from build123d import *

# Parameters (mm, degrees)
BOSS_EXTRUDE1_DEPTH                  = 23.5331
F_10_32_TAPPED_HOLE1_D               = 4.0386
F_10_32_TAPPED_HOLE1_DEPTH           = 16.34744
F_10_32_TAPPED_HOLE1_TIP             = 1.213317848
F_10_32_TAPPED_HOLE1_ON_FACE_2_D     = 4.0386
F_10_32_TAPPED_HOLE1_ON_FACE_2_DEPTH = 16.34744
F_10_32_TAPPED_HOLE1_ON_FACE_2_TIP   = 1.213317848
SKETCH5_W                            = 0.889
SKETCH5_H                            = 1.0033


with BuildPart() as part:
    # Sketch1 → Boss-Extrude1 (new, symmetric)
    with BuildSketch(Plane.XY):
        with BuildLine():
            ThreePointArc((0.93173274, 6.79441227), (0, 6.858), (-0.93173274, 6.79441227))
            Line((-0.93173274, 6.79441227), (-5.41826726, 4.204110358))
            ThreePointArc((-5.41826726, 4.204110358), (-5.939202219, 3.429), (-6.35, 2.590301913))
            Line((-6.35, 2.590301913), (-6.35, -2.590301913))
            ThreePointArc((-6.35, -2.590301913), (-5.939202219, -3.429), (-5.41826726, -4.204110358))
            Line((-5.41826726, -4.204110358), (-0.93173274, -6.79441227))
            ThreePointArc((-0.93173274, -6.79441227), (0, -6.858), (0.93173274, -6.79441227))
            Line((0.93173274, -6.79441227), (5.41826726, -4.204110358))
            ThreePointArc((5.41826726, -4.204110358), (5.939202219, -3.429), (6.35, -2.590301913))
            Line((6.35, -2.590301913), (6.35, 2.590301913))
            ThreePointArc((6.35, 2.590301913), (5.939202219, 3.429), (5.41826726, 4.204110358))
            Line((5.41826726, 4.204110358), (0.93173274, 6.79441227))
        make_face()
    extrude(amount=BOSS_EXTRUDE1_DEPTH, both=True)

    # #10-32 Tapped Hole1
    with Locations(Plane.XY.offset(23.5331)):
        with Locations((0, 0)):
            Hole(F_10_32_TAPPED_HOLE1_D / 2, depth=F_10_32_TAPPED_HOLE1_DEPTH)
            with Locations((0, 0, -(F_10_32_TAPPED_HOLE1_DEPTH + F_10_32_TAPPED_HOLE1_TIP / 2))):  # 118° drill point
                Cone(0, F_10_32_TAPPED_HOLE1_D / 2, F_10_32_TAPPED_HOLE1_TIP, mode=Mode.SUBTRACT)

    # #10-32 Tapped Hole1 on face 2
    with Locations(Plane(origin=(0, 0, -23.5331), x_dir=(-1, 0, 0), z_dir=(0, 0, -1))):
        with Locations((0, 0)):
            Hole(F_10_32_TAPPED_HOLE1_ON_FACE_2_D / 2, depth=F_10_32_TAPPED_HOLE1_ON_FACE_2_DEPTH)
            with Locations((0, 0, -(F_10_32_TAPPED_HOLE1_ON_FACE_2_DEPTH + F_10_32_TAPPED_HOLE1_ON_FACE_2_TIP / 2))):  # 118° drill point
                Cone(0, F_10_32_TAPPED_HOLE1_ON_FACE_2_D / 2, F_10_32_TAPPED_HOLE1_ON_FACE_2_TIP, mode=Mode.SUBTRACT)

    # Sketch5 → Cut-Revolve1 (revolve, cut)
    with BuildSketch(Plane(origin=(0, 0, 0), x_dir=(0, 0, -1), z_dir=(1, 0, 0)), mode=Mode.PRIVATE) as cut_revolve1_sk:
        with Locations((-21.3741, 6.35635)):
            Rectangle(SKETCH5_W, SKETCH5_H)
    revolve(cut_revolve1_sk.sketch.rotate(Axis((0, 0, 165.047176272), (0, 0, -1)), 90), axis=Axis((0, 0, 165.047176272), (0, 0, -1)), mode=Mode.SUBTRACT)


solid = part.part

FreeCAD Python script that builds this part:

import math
import FreeCAD as App
import Part
import Sketcher
Q = App.Units.Quantity

doc = App.newDocument("Part")
params = doc.addObject("Spreadsheet::Sheet", "Params")
for row, (alias, value) in enumerate([
    ("sketch1_radius", "0.27 in"),
    ("pad1_length", "1.853 in"),
    ("sketch2_diameter", "0.159 in"),
    ("hole_diameter", "0.159 in"),
    ("hole_depth", "0.6436 in"),
    ("sketch3_diameter", "0.159 in"),
    ("hole2_diameter", "0.159 in"),
    ("hole2_depth", "0.6436 in"),
    ("sketch4_height", "0.035 in"),
    ("groove_angle", "360 deg"),
], start=1):
    params.set(f"A{row}", alias)
    params.set(f"B{row}", "=" + value)
    params.setAlias(f"B{row}", alias)

body = doc.addObject("PartDesign::Body", "Body")

sketch1 = body.newObject("Sketcher::SketchObject", "Sketch")
sketch1.AttachmentSupport = (doc.getObject("XY_Plane"), [""])
sketch1.MapMode = "FlatFace"
sketch1.addGeometry(Part.ArcOfCircle(Part.Circle(App.Vector(0, 0, 0), App.Vector(0, 0, 1), 6.9), math.radians(82.19), math.radians(97.81)), False)
sketch1.addGeometry(Part.LineSegment(App.Vector(-0.9, 6.8, 0), App.Vector(-5.4, 4.2, 0)), False)
sketch1.addGeometry(Part.ArcOfCircle(Part.Circle(App.Vector(0, 0, 0), App.Vector(0, 0, 1), 6.9), math.radians(142.19), math.radians(157.81)), False)
sketch1.addGeometry(Part.LineSegment(App.Vector(-6.3, 2.6, 0), App.Vector(-6.3, -2.6, 0)), False)
sketch1.addGeometry(Part.ArcOfCircle(Part.Circle(App.Vector(0, 0, 0), App.Vector(0, 0, 1), 6.9), math.radians(-157.81), math.radians(-142.19)), False)
sketch1.addGeometry(Part.LineSegment(App.Vector(-5.4, -4.2, 0), App.Vector(-0.9, -6.8, 0)), False)
sketch1.addGeometry(Part.ArcOfCircle(Part.Circle(App.Vector(0, 0, 0), App.Vector(0, 0, 1), 6.9), math.radians(-97.81), math.radians(-82.19)), False)
sketch1.addGeometry(Part.LineSegment(App.Vector(0.9, -6.8, 0), App.Vector(5.4, -4.2, 0)), False)
sketch1.addGeometry(Part.ArcOfCircle(Part.Circle(App.Vector(0, 0, 0), App.Vector(0, 0, 1), 6.9), math.radians(-37.81), math.radians(-22.19)), False)
sketch1.addGeometry(Part.LineSegment(App.Vector(6.3, -2.6, 0), App.Vector(6.3, 2.6, 0)), False)
sketch1.addGeometry(Part.ArcOfCircle(Part.Circle(App.Vector(0, 0, 0), App.Vector(0, 0, 1), 6.9), math.radians(22.19), math.radians(37.81)), False)
sketch1.addGeometry(Part.LineSegment(App.Vector(5.4, 4.2, 0), App.Vector(0.9, 6.8, 0)), False)
sketch1.addConstraint(Sketcher.Constraint("Coincident", 0, 2, 1, 1))
sketch1.addConstraint(Sketcher.Constraint("Coincident", 1, 2, 2, 1))
sketch1.addConstraint(Sketcher.Constraint("Coincident", 2, 2, 3, 1))
sketch1.addConstraint(Sketcher.Constraint("Coincident", 3, 2, 4, 1))
sketch1.addConstraint(Sketcher.Constraint("Coincident", 4, 2, 5, 1))
sketch1.addConstraint(Sketcher.Constraint("Coincident", 5, 2, 6, 1))
sketch1.addConstraint(Sketcher.Constraint("Coincident", 6, 2, 7, 1))
sketch1.addConstraint(Sketcher.Constraint("Coincident", 7, 2, 8, 1))
sketch1.addConstraint(Sketcher.Constraint("Coincident", 8, 2, 9, 1))
sketch1.addConstraint(Sketcher.Constraint("Coincident", 9, 2, 10, 1))
sketch1.addConstraint(Sketcher.Constraint("Coincident", 10, 2, 11, 1))
sketch1.addConstraint(Sketcher.Constraint("Coincident", 11, 2, 0, 1))
sketch1.addConstraint(Sketcher.Constraint("Vertical", 3))
sketch1.addConstraint(Sketcher.Constraint("Vertical", 9))
sketch1.addConstraint(Sketcher.Constraint("Coincident", 0, 3, -1, 1))
sketch1.addConstraint(Sketcher.Constraint("Coincident", 2, 3, -1, 1))
sketch1.addConstraint(Sketcher.Constraint("Coincident", 4, 3, -1, 1))
sketch1.addConstraint(Sketcher.Constraint("Coincident", 6, 3, -1, 1))
sketch1.addConstraint(Sketcher.Constraint("Coincident", 8, 3, -1, 1))
sketch1.addConstraint(Sketcher.Constraint("Coincident", 10, 3, -1, 1))
sketch1.addConstraint(Sketcher.Constraint("Equal", 0, 2))
sketch1.addConstraint(Sketcher.Constraint("Equal", 2, 4))
sketch1.addConstraint(Sketcher.Constraint("Equal", 4, 6))
sketch1.addConstraint(Sketcher.Constraint("Equal", 6, 8))
sketch1.addConstraint(Sketcher.Constraint("Equal", 8, 10))
sketch1.addConstraint(Sketcher.Constraint("Parallel", 1, 7))
sketch1.addConstraint(Sketcher.Constraint("Parallel", 5, 11))
sketch1.addConstraint(Sketcher.Constraint("Horizontal", 5, 2, 6, 2))
sketch1.addConstraint(Sketcher.Constraint("Horizontal", 4, 2, 7, 2))
sketch1.addConstraint(Sketcher.Constraint("Horizontal", 3, 2, 8, 2))
sketch1.addConstraint(Sketcher.Constraint("Horizontal", 1, 2, 10, 2))
sketch1.addConstraint(Sketcher.Constraint("Vertical", 1, 2, 4, 2))
sketch1.addConstraint(Sketcher.Constraint("Radius", 0, Q("0.27 in")))
sketch1.addConstraint(Sketcher.Constraint("Angle", 1, Q("-150 deg")))
sketch1.addConstraint(Sketcher.Constraint("DistanceX", 2, 2, -1, 1, Q("0.25 in")))
sketch1.addConstraint(Sketcher.Constraint("DistanceX", 4, 2, 6, 2, Q("0.25 in")))
sketch1.setExpression("Constraints[32]", "Params.sketch1_radius")
pad1 = body.newObject("PartDesign::Pad", "Pad")
pad1.Profile = sketch1
pad1.setExpression("Length", "Params.pad1_length")
pad1.Midplane = True

sketch2 = body.newObject("Sketcher::SketchObject", "Sketch001")
sketch2.AttachmentSupport = (doc.getObject("XY_Plane"), [""])
sketch2.MapMode = "FlatFace"
sketch2.AttachmentOffset = App.Placement(App.Vector(0, 0, 0.9265 * 25.4), App.Rotation())
sketch2.addGeometry(Part.Circle(App.Vector(0, 0, 0), App.Vector(0, 0, 1), 2), False)
sketch2.addConstraint(Sketcher.Constraint("Coincident", 0, 3, -1, 1))
sketch2.addConstraint(Sketcher.Constraint("Diameter", 0, Q("0.159 in")))
sketch2.setExpression("Constraints[1]", "Params.sketch2_diameter")
doc.recompute()
hole = body.newObject("PartDesign::Hole", "Hole")
hole.Profile = sketch2
hole.ThreadType = "None"
hole.setExpression("Diameter", "Params.hole_diameter")
hole.DepthType = "Dimension"
hole.setExpression("Depth", "Params.hole_depth")
hole.DrillPoint = "Angled"
hole.DrillPointAngle = 118

sketch3 = body.newObject("Sketcher::SketchObject", "Sketch002")
sketch3.AttachmentSupport = (doc.getObject("XY_Plane"), [""])
sketch3.MapMode = "FlatFace"
sketch3.AttachmentOffset = App.Placement(App.Vector(0, 0, -0.9265 * 25.4), App.Rotation())
sketch3.addGeometry(Part.Circle(App.Vector(0, 0, 0), App.Vector(0, 0, 1), 2), False)
sketch3.addConstraint(Sketcher.Constraint("Coincident", 0, 3, -1, 1))
sketch3.addConstraint(Sketcher.Constraint("Diameter", 0, Q("0.159 in")))
sketch3.setExpression("Constraints[1]", "Params.sketch3_diameter")
doc.recompute()
hole2 = body.newObject("PartDesign::Hole", "Hole001")
hole2.Profile = sketch3
hole2.ThreadType = "None"
hole2.setExpression("Diameter", "Params.hole2_diameter")
hole2.DepthType = "Dimension"
hole2.setExpression("Depth", "Params.hole2_depth")
hole2.DrillPoint = "Angled"
hole2.DrillPointAngle = 118
hole2.Reversed = True

sketch4 = body.newObject("Sketcher::SketchObject", "Sketch003")
sketch4.AttachmentSupport = (doc.getObject("YZ_Plane"), [""])
sketch4.MapMode = "FlatFace"
sketch4.addGeometry(Part.LineSegment(App.Vector(6.9, 21.8, 0), App.Vector(5.9, 21.8, 0)), False)
sketch4.addGeometry(Part.LineSegment(App.Vector(5.9, 21.8, 0), App.Vector(5.9, 20.9, 0)), False)
sketch4.addGeometry(Part.LineSegment(App.Vector(5.9, 20.9, 0), App.Vector(6.9, 20.9, 0)), False)
sketch4.addGeometry(Part.LineSegment(App.Vector(6.9, 20.9, 0), App.Vector(6.9, 21.8, 0)), False)
sketch4.addConstraint(Sketcher.Constraint("Coincident", 0, 2, 1, 1))
sketch4.addConstraint(Sketcher.Constraint("Coincident", 1, 2, 2, 1))
sketch4.addConstraint(Sketcher.Constraint("Coincident", 2, 2, 3, 1))
sketch4.addConstraint(Sketcher.Constraint("Coincident", 3, 2, 0, 1))
sketch4.addConstraint(Sketcher.Constraint("Horizontal", 0))
sketch4.addConstraint(Sketcher.Constraint("Vertical", 1))
sketch4.addConstraint(Sketcher.Constraint("Horizontal", 2))
sketch4.addConstraint(Sketcher.Constraint("Vertical", 3))
sketch4.addConstraint(Sketcher.Constraint("DistanceY", 1, 2, 1, 1, Q("0.035 in")))
sketch4.addConstraint(Sketcher.Constraint("DistanceX", -1, 1, 2, 2, Q("0.27 in")))
sketch4.addConstraint(Sketcher.Constraint("DistanceX", 0, 2, 0, 1, Q("0.0395 in")))
sketch4.addConstraint(Sketcher.Constraint("DistanceY", -1, 1, 0, 2, Q("0.859 in")))
sketch4.setExpression("Constraints[8]", "Params.sketch4_height")
groove = body.newObject("PartDesign::Groove", "Groove")
groove.Profile = sketch4
groove.ReferenceAxis = (sketch4, ["V_Axis"])
groove.setExpression("Angle", "Params.groove_angle")

doc.recompute()
